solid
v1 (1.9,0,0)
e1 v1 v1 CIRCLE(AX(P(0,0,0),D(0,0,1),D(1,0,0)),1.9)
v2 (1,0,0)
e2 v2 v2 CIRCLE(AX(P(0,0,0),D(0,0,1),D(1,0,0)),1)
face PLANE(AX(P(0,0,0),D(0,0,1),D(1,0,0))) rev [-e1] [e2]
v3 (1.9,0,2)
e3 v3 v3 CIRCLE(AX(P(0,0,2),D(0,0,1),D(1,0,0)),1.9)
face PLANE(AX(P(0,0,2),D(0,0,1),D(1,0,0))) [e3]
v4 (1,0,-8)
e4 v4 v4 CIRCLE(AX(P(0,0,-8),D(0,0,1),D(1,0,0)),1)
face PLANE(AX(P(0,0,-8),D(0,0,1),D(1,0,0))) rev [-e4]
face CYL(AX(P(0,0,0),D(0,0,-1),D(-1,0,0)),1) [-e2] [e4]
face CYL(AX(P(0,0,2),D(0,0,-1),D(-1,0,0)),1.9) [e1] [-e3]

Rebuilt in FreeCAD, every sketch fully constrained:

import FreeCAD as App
import Part
import Sketcher
from FreeCAD import Vector

doc = App.newDocument("Part")
body = doc.addObject("PartDesign::Body", "Body")

# Sketch on XY plane
sketch1 = body.newObject("Sketcher::SketchObject", "Sketch")
sketch1.AttachmentSupport = (doc.getObject("XY_Plane"), [""])
sketch1.MapMode = "FlatFace"
sketch1.AttachmentOffset = App.Placement(Vector(0, 0, -8), App.Rotation())
sketch1.addGeometry(Part.Circle(Vector(0, 0, 0), Vector(0, 0, 1), 1), False)
sketch1.addConstraint(Sketcher.Constraint("Coincident", 0, 3, -1, 1))
sketch1.addConstraint(Sketcher.Constraint("Diameter", 0, 2.0))
pad1 = body.newObject("PartDesign::Pad", "Pad")
pad1.Profile = sketch1
pad1.Length = 8

# Sketch on XY plane
sketch2 = body.newObject("Sketcher::SketchObject", "Sketch001")
sketch2.AttachmentSupport = (doc.getObject("XY_Plane"), [""])
sketch2.MapMode = "FlatFace"
sketch2.addGeometry(Part.Circle(Vector(0, 0, 0), Vector(0, 0, 1), 1.9), False)
sketch2.addConstraint(Sketcher.Constraint("Coincident", 0, 3, -1, 1))
sketch2.addConstraint(Sketcher.Constraint("Diameter", 0, 3.8))
pad2 = body.newObject("PartDesign::Pad", "Pad001")
pad2.Profile = sketch2
pad2.Length = 2

doc.recompute()
